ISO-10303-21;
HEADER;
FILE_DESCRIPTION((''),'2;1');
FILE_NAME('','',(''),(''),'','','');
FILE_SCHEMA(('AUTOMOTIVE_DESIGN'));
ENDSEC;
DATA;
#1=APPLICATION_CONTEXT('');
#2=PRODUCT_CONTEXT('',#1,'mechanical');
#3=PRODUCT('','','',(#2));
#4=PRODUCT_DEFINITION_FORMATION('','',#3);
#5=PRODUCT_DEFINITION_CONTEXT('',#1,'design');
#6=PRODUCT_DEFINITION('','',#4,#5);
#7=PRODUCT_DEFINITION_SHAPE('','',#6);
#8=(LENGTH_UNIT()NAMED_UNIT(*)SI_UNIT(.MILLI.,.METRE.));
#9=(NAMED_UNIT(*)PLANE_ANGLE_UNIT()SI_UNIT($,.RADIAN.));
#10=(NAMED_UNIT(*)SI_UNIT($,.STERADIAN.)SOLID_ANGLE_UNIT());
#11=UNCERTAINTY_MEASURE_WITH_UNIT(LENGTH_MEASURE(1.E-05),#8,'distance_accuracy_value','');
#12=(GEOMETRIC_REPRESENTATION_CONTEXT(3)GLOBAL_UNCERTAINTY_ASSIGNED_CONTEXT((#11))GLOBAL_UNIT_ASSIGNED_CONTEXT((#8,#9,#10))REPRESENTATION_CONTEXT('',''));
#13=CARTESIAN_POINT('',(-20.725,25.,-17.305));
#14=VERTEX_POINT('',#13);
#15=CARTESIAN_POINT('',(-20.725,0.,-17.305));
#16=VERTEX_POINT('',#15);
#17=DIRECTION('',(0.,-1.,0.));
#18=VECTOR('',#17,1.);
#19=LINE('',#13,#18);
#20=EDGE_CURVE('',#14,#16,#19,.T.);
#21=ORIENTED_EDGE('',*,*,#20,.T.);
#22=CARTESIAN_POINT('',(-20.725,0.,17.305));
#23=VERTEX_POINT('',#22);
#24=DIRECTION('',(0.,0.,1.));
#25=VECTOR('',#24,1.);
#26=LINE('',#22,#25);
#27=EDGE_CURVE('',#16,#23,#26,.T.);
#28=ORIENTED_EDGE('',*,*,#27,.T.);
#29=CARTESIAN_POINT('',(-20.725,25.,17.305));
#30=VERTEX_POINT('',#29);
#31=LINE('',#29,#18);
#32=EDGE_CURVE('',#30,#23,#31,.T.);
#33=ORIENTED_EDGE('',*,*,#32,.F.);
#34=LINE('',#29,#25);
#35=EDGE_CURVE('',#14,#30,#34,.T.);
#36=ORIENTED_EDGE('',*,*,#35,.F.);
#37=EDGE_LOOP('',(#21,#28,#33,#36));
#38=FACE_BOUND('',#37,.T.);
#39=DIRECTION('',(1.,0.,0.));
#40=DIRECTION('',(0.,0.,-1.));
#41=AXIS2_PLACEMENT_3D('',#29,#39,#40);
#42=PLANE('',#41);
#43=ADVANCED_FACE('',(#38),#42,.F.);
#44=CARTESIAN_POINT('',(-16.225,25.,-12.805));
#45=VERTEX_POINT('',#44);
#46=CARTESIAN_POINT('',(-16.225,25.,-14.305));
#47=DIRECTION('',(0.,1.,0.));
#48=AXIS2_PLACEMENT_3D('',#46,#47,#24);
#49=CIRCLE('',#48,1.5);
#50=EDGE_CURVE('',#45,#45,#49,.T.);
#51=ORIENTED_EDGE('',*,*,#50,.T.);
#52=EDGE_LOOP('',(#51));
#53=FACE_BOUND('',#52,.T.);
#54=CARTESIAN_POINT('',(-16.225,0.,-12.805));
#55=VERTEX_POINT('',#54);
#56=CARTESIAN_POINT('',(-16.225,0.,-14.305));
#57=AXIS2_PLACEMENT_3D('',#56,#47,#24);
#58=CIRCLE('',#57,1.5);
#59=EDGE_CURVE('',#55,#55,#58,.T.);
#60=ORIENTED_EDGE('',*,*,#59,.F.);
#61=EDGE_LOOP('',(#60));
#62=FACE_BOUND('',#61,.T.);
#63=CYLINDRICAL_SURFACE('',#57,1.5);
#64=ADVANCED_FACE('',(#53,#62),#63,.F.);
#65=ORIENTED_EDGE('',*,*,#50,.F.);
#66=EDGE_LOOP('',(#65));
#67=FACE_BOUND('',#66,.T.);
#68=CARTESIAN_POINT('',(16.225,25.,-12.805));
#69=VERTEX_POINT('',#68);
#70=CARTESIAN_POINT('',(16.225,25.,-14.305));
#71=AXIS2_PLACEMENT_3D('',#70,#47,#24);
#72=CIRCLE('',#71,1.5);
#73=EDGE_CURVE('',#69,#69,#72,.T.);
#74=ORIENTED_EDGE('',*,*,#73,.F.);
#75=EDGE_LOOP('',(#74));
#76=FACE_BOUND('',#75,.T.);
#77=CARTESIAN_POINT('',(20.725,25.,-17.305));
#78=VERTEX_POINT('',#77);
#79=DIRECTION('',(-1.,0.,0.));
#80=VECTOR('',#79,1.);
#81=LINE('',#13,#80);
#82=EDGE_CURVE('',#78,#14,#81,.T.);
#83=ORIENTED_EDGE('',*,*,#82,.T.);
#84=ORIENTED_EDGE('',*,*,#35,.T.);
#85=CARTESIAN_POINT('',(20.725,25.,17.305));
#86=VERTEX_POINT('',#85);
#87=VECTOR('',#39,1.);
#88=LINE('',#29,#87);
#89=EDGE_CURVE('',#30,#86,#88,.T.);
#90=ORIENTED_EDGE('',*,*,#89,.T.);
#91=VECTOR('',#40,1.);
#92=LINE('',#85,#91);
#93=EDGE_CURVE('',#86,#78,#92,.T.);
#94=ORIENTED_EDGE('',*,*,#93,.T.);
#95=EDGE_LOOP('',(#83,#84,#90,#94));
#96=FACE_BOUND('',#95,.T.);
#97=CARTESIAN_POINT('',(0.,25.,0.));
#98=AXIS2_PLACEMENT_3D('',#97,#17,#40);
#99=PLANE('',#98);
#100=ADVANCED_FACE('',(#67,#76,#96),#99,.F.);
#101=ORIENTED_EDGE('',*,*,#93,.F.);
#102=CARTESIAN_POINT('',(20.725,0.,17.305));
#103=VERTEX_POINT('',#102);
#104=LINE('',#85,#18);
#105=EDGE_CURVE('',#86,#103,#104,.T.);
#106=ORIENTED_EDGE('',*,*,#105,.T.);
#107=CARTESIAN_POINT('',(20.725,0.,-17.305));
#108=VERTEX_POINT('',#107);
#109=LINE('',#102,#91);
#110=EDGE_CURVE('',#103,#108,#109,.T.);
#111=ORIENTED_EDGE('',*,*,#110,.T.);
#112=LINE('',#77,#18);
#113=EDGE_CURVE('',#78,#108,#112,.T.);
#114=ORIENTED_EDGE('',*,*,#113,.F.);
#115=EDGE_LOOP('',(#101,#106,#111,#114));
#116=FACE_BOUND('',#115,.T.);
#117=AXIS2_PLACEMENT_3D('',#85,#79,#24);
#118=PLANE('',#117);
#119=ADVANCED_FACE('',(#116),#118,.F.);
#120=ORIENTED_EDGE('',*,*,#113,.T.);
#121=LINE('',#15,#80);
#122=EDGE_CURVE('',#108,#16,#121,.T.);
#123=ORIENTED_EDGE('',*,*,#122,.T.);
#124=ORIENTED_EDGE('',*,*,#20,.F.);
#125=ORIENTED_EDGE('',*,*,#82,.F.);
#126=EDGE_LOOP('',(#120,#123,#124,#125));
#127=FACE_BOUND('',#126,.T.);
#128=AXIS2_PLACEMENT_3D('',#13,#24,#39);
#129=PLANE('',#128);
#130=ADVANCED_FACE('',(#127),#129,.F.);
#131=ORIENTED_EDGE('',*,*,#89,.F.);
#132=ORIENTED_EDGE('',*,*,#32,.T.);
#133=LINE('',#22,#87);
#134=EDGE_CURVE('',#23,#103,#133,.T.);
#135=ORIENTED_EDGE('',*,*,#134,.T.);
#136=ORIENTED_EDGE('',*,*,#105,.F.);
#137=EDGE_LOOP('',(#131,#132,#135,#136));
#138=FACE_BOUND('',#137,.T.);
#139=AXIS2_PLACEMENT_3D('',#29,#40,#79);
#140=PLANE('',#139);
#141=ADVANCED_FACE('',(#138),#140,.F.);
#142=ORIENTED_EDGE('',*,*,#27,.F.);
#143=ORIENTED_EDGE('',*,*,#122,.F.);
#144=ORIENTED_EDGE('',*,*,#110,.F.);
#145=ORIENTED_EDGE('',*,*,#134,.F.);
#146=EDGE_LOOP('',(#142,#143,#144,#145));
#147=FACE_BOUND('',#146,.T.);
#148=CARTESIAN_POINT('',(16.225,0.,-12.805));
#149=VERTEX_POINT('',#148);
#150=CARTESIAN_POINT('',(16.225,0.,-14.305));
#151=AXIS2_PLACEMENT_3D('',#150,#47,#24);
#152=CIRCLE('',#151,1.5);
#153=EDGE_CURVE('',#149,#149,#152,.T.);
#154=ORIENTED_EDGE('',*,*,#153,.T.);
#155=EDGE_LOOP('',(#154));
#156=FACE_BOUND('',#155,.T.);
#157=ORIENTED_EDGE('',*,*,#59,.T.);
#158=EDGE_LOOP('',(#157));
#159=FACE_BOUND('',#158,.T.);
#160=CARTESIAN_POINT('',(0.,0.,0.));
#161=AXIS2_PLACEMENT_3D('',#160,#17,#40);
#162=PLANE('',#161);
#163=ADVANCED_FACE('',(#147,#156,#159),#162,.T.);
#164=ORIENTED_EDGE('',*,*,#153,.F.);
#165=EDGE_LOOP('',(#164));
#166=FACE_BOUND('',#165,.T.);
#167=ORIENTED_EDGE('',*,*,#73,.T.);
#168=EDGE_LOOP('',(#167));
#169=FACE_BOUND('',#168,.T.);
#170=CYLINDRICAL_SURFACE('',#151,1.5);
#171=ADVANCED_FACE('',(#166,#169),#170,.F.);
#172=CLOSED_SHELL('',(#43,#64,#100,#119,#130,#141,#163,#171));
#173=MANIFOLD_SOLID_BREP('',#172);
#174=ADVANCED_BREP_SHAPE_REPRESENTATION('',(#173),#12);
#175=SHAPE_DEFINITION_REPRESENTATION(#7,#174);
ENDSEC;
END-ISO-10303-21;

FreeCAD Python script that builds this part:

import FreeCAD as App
import Part
import Sketcher
Q = App.Units.Quantity


def add_polygon(sketch, points):
    """Adds a closed chain of lines whose ends are joined by coincident constraints."""
    first, n = sketch.GeometryCount, len(points)
    for a, b in zip(points, points[1:] + points[:1]):
        sketch.addGeometry(Part.LineSegment(App.Vector(*a, 0), App.Vector(*b, 0)), False)
    for i in range(n):
        sketch.addConstraint(Sketcher.Constraint("Coincident", first + i, 2, first + (i + 1) % n, 1))

doc = App.newDocument("Part")
body = doc.addObject("PartDesign::Body", "Body")

# Sketch on XZ plane
sketch1 = body.newObject("Sketcher::SketchObject", "Sketch")
sketch1.AttachmentSupport = (doc.getObject("XZ_Plane"), [""])
sketch1.MapMode = "FlatFace"
add_polygon(sketch1, [(-21, -17), (-21, 17), (21, 17), (21, -17)])  # lines 0-3
sketch1.addConstraint(Sketcher.Constraint("Vertical", 0))
sketch1.addConstraint(Sketcher.Constraint("Horizontal", 1))
sketch1.addConstraint(Sketcher.Constraint("Vertical", 2))
sketch1.addConstraint(Sketcher.Constraint("Horizontal", 3))
sketch1.addConstraint(Sketcher.Constraint("Symmetric", 0, 2, 2, 2, -1, 1))
sketch1.addConstraint(Sketcher.Constraint("DistanceX", 1, 1, 1, 2, Q("41.45 mm")))
sketch1.addConstraint(Sketcher.Constraint("DistanceY", 0, 1, 0, 2, Q("34.61 mm")))
pad1 = body.newObject("PartDesign::Pad", "Pad")
pad1.Profile = sketch1
pad1.Length = 25
pad1.Reversed = True

# Sketch on XZ plane
sketch2 = body.newObject("Sketcher::SketchObject", "Sketch001")
sketch2.AttachmentSupport = (doc.getObject("XZ_Plane"), [""])
sketch2.MapMode = "FlatFace"
sketch2.AttachmentOffset = App.Placement(App.Vector(0, 0, -25), App.Rotation())
sketch2.addGeometry(Part.Circle(App.Vector(-16.2, -14.3, 0), App.Vector(0, 0, 1), 1.5), False)
sketch2.addGeometry(Part.Circle(App.Vector(16.2, -14.3, 0), App.Vector(0, 0, 1), 1.5), False)
sketch2.addConstraint(Sketcher.Constraint("Equal", 0, 1))
sketch2.addConstraint(Sketcher.Constraint("Symmetric", 0, 3, 1, 3, -2))
sketch2.addConstraint(Sketcher.Constraint("Diameter", 0, Q("3 mm")))
sketch2.addConstraint(Sketcher.Constraint("DistanceX", 0, 3, 1, 3, Q("32.45 mm")))
sketch2.addConstraint(Sketcher.Constraint("DistanceY", 0, 3, -1, 1, Q("14.305 mm")))
pocket1 = body.newObject("PartDesign::Pocket", "Pocket")
pocket1.Profile = sketch2
pocket1.Length = 25
pocket1.Reversed = True

doc.recompute()
